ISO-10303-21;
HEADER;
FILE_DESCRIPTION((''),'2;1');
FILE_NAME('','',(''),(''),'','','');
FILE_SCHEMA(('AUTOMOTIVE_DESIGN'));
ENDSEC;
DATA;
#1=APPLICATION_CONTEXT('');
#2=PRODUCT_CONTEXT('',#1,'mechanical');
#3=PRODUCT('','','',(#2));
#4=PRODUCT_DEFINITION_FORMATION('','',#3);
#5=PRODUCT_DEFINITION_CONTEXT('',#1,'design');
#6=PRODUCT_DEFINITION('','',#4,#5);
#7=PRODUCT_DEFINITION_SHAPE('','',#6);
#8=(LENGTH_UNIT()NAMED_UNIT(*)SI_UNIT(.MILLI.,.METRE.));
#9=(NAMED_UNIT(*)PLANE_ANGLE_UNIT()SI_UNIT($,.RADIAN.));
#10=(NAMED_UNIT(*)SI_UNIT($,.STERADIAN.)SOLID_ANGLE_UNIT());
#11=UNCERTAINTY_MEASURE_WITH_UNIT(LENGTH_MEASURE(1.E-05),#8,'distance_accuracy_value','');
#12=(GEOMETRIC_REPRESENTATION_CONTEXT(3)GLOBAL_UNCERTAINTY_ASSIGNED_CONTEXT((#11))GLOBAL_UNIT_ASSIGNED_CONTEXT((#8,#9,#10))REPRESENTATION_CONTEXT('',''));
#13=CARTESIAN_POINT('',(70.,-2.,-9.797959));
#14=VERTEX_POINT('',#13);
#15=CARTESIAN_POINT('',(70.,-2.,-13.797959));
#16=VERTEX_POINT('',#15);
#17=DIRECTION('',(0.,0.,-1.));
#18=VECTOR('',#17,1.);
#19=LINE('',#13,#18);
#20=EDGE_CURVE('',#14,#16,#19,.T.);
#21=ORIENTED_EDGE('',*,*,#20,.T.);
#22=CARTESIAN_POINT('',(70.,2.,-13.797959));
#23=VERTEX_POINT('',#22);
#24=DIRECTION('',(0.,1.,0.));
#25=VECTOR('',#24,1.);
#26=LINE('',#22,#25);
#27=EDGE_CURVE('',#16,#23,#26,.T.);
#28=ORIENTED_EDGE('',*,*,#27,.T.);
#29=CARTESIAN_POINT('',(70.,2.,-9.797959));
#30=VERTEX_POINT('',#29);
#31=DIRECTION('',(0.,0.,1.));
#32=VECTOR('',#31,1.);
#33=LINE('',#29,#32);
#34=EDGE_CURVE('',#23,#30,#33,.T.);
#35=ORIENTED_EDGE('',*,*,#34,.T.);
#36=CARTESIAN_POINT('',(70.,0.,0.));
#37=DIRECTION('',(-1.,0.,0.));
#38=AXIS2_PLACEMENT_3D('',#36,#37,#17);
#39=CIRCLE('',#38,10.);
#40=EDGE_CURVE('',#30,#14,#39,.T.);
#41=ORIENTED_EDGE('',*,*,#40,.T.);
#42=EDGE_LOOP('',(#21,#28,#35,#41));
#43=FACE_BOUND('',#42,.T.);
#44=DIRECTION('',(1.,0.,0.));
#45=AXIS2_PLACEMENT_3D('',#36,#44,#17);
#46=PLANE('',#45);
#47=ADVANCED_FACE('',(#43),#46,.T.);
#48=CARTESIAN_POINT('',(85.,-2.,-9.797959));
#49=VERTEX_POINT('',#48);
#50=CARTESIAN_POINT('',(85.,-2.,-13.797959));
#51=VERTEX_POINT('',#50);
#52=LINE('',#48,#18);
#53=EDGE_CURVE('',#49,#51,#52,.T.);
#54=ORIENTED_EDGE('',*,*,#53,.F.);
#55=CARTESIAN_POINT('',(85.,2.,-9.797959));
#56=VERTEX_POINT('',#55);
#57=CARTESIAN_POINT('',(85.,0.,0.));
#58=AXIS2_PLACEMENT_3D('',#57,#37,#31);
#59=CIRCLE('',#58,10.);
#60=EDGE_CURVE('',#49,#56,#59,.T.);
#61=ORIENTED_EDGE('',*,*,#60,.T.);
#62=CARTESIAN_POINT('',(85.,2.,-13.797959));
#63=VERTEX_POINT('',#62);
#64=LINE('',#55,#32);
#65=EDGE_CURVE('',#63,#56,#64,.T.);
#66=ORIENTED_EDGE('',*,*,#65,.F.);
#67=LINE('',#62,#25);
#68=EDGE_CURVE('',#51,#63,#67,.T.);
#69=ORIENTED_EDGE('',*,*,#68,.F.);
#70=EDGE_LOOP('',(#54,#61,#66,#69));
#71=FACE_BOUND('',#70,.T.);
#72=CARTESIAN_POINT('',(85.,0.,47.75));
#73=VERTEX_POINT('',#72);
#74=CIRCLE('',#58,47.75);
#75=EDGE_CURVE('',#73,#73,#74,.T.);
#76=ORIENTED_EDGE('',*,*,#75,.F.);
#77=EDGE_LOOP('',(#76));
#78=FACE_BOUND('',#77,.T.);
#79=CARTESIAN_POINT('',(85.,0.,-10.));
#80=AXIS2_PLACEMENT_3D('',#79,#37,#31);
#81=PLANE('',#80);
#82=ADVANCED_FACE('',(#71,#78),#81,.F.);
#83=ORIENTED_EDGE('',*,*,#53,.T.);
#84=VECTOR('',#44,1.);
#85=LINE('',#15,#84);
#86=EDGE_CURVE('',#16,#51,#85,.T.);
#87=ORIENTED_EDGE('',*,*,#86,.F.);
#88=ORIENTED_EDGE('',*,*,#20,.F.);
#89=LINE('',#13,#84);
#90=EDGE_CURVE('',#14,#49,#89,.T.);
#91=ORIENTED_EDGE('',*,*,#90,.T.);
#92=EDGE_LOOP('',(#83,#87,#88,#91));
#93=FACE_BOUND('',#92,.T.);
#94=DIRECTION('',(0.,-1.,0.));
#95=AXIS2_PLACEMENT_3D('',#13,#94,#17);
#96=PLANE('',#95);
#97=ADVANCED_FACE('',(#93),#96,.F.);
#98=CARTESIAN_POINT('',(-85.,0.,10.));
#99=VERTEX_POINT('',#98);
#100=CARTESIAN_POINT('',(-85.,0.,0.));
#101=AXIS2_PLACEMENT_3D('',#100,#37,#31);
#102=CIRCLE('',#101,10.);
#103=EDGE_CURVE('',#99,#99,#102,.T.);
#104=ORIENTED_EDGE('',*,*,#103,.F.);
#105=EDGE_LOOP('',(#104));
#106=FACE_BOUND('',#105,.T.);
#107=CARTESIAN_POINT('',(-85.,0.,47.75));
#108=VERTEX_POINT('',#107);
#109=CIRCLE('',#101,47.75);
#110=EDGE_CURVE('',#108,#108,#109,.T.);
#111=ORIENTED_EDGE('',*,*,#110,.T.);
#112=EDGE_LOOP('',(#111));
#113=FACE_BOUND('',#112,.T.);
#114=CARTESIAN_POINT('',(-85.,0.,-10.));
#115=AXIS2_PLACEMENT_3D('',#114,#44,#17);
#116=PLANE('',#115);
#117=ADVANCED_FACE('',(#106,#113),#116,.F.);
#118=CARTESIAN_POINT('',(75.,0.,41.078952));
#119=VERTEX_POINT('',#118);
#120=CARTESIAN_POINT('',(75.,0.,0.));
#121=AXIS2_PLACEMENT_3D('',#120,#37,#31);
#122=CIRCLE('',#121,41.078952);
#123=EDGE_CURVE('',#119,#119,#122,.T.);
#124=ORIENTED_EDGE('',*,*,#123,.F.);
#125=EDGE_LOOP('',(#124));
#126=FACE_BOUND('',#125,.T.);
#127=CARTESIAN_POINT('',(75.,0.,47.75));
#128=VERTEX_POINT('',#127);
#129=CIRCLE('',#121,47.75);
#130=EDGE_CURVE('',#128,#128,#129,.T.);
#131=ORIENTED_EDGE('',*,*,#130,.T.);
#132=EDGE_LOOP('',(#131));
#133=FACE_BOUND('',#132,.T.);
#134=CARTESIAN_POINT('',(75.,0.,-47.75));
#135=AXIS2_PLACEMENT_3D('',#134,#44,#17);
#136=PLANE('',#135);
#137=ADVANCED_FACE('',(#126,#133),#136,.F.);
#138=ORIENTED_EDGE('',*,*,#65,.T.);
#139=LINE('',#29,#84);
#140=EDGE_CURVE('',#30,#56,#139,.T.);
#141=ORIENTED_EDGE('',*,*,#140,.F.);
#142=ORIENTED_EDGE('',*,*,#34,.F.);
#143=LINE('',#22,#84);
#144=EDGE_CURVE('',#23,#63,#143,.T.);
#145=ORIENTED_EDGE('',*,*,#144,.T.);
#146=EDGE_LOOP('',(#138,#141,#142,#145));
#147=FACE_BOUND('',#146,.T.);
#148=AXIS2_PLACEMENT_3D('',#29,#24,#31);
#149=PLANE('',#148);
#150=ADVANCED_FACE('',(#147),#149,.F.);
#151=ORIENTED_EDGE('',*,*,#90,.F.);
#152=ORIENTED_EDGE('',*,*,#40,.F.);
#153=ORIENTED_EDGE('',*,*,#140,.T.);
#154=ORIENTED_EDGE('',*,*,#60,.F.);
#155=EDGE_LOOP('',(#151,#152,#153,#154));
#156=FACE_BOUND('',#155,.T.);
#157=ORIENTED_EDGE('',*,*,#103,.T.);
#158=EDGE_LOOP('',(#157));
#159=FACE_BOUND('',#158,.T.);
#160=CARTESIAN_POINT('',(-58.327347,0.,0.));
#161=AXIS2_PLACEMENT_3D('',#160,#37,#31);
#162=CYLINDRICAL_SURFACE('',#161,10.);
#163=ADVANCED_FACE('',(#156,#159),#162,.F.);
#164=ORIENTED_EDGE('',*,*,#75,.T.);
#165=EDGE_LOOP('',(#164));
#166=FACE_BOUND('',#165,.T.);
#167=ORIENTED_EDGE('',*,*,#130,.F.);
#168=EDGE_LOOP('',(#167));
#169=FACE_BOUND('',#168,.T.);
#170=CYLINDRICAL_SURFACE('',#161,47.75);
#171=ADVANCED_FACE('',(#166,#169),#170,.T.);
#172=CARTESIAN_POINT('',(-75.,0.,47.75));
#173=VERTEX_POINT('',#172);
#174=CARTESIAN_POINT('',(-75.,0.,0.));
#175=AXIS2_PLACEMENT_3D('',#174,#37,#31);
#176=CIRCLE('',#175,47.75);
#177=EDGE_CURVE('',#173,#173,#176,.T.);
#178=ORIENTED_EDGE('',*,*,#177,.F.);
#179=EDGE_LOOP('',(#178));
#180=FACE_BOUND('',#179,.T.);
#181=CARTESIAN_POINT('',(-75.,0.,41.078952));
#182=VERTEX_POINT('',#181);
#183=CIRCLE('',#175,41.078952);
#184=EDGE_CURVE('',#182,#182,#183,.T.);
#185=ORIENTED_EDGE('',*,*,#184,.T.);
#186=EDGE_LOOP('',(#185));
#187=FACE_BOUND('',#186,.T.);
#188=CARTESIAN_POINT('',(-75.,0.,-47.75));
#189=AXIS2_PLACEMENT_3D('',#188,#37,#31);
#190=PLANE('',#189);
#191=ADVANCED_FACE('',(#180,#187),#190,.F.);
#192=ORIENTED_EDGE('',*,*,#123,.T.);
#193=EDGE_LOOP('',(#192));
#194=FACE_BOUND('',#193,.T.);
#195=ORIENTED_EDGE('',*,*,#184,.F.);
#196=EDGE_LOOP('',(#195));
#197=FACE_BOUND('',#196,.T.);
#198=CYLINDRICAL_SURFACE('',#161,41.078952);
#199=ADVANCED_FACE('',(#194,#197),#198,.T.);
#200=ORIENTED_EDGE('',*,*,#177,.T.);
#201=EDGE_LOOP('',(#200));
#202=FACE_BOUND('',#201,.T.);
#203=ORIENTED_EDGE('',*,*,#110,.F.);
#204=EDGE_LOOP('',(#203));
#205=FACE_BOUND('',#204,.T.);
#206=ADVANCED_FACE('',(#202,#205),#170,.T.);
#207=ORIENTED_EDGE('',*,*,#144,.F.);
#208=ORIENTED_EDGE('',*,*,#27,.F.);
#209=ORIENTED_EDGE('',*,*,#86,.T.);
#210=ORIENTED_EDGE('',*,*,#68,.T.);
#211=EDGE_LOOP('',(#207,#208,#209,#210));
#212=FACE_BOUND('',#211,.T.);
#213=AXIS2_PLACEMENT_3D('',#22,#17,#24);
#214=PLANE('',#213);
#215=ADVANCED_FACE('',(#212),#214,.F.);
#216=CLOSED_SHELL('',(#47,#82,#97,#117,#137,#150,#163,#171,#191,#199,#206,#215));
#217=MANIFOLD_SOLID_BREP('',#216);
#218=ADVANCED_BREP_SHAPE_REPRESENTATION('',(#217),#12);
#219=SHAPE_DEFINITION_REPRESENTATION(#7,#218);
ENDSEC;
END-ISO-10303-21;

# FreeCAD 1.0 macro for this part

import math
import FreeCAD as App
import Part
import Sketcher
Q = App.Units.Quantity


def add_polygon(sketch, points):
    """Adds a closed chain of lines whose ends are joined by coincident constraints."""
    first, n = sketch.GeometryCount, len(points)
    for a, b in zip(points, points[1:] + points[:1]):
        sketch.addGeometry(Part.LineSegment(App.Vector(*a, 0), App.Vector(*b, 0)), False)
    for i in range(n):
        sketch.addConstraint(Sketcher.Constraint("Coincident", first + i, 2, first + (i + 1) % n, 1))

doc = App.newDocument("Part")
body = doc.addObject("PartDesign::Body", "Body")

sketch1 = body.newObject("Sketcher::SketchObject", "Sketch")
sketch1.AttachmentSupport = (doc.getObject("XZ_Plane"), [""])
sketch1.MapMode = "FlatFace"
add_polygon(sketch1, [(-85, -48), (-85, -10), (85, -10), (85, -48), (75, -48), (75, -41), (-75, -41), (-75, -48)])
sketch1.addConstraint(Sketcher.Constraint("Vertical", 0))
sketch1.addConstraint(Sketcher.Constraint("Horizontal", 1))
sketch1.addConstraint(Sketcher.Constraint("Vertical", 2))
sketch1.addConstraint(Sketcher.Constraint("Horizontal", 3))
sketch1.addConstraint(Sketcher.Constraint("Vertical", 4))
sketch1.addConstraint(Sketcher.Constraint("Horizontal", 5))
sketch1.addConstraint(Sketcher.Constraint("Vertical", 6))
sketch1.addConstraint(Sketcher.Constraint("Horizontal", 7))
sketch1.addConstraint(Sketcher.Constraint("Symmetric", 3, 2, 6, 2, -2))
sketch1.addConstraint(Sketcher.Constraint("Equal", 3, 7))
sketch1.addConstraint(Sketcher.Constraint("DistanceX", 1, 1, 1, 2, Q("170 mm")))
sketch1.addConstraint(Sketcher.Constraint("DistanceX", 3, 2, 3, 1, Q("10 mm")))
sketch1.addConstraint(Sketcher.Constraint("DistanceY", 0, 2, -1, 1, Q("10 mm")))
sketch1.addConstraint(Sketcher.Constraint("DistanceY", 0, 1, 0, 2, Q("37.75 mm")))
sketch1.addConstraint(Sketcher.Constraint("DistanceY", 4, 1, 4, 2, Q("6.671048 mm")))
revolution = body.newObject("PartDesign::Revolution", "Revolution")
revolution.Profile = sketch1
revolution.ReferenceAxis = (sketch1, ["H_Axis"])
revolution.Angle = 360

sketch2 = body.newObject("Sketcher::SketchObject", "Sketch001")
sketch2.AttachmentSupport = (doc.getObject("YZ_Plane"), [""])
sketch2.MapMode = "FlatFace"
sketch2.AttachmentOffset = App.Placement(App.Vector(0, 0, 70), App.Rotation())
sketch2.addGeometry(Part.LineSegment(App.Vector(2, -13.8, 0), App.Vector(2, -9.8, 0)), False)
sketch2.addGeometry(Part.ArcOfCircle(Part.Circle(App.Vector(0, 0, 0), App.Vector(0, 0, 1), 10), math.radians(-102), math.radians(-78)), False)
sketch2.addGeometry(Part.LineSegment(App.Vector(-2, -9.8, 0), App.Vector(-2, -13.8, 0)), False)
sketch2.addGeometry(Part.LineSegment(App.Vector(-2, -13.8, 0), App.Vector(2, -13.8, 0)), False)
sketch2.addConstraint(Sketcher.Constraint("Coincident", 0, 2, 1, 2))
sketch2.addConstraint(Sketcher.Constraint("Coincident", 1, 1, 2, 1))
sketch2.addConstraint(Sketcher.Constraint("Coincident", 2, 2, 3, 1))
sketch2.addConstraint(Sketcher.Constraint("Coincident", 3, 2, 0, 1))
sketch2.addConstraint(Sketcher.Constraint("Vertical", 0))
sketch2.addConstraint(Sketcher.Constraint("Vertical", 2))
sketch2.addConstraint(Sketcher.Constraint("Horizontal", 3))
sketch2.addConstraint(Sketcher.Constraint("Coincident", 1, 3, -1, 1))
sketch2.addConstraint(Sketcher.Constraint("Horizontal", 0, 2, 1, 1))
sketch2.addConstraint(Sketcher.Constraint("Equal", 3, 0))
sketch2.addConstraint(Sketcher.Constraint("Radius", 1, Q("10 mm")))
sketch2.addConstraint(Sketcher.Constraint("DistanceX", 3, 1, 3, 2, Q("4 mm")))
pocket1 = body.newObject("PartDesign::Pocket", "Pocket")
pocket1.Profile = sketch2
pocket1.Length = 15
pocket1.Reversed = True

doc.recompute()
